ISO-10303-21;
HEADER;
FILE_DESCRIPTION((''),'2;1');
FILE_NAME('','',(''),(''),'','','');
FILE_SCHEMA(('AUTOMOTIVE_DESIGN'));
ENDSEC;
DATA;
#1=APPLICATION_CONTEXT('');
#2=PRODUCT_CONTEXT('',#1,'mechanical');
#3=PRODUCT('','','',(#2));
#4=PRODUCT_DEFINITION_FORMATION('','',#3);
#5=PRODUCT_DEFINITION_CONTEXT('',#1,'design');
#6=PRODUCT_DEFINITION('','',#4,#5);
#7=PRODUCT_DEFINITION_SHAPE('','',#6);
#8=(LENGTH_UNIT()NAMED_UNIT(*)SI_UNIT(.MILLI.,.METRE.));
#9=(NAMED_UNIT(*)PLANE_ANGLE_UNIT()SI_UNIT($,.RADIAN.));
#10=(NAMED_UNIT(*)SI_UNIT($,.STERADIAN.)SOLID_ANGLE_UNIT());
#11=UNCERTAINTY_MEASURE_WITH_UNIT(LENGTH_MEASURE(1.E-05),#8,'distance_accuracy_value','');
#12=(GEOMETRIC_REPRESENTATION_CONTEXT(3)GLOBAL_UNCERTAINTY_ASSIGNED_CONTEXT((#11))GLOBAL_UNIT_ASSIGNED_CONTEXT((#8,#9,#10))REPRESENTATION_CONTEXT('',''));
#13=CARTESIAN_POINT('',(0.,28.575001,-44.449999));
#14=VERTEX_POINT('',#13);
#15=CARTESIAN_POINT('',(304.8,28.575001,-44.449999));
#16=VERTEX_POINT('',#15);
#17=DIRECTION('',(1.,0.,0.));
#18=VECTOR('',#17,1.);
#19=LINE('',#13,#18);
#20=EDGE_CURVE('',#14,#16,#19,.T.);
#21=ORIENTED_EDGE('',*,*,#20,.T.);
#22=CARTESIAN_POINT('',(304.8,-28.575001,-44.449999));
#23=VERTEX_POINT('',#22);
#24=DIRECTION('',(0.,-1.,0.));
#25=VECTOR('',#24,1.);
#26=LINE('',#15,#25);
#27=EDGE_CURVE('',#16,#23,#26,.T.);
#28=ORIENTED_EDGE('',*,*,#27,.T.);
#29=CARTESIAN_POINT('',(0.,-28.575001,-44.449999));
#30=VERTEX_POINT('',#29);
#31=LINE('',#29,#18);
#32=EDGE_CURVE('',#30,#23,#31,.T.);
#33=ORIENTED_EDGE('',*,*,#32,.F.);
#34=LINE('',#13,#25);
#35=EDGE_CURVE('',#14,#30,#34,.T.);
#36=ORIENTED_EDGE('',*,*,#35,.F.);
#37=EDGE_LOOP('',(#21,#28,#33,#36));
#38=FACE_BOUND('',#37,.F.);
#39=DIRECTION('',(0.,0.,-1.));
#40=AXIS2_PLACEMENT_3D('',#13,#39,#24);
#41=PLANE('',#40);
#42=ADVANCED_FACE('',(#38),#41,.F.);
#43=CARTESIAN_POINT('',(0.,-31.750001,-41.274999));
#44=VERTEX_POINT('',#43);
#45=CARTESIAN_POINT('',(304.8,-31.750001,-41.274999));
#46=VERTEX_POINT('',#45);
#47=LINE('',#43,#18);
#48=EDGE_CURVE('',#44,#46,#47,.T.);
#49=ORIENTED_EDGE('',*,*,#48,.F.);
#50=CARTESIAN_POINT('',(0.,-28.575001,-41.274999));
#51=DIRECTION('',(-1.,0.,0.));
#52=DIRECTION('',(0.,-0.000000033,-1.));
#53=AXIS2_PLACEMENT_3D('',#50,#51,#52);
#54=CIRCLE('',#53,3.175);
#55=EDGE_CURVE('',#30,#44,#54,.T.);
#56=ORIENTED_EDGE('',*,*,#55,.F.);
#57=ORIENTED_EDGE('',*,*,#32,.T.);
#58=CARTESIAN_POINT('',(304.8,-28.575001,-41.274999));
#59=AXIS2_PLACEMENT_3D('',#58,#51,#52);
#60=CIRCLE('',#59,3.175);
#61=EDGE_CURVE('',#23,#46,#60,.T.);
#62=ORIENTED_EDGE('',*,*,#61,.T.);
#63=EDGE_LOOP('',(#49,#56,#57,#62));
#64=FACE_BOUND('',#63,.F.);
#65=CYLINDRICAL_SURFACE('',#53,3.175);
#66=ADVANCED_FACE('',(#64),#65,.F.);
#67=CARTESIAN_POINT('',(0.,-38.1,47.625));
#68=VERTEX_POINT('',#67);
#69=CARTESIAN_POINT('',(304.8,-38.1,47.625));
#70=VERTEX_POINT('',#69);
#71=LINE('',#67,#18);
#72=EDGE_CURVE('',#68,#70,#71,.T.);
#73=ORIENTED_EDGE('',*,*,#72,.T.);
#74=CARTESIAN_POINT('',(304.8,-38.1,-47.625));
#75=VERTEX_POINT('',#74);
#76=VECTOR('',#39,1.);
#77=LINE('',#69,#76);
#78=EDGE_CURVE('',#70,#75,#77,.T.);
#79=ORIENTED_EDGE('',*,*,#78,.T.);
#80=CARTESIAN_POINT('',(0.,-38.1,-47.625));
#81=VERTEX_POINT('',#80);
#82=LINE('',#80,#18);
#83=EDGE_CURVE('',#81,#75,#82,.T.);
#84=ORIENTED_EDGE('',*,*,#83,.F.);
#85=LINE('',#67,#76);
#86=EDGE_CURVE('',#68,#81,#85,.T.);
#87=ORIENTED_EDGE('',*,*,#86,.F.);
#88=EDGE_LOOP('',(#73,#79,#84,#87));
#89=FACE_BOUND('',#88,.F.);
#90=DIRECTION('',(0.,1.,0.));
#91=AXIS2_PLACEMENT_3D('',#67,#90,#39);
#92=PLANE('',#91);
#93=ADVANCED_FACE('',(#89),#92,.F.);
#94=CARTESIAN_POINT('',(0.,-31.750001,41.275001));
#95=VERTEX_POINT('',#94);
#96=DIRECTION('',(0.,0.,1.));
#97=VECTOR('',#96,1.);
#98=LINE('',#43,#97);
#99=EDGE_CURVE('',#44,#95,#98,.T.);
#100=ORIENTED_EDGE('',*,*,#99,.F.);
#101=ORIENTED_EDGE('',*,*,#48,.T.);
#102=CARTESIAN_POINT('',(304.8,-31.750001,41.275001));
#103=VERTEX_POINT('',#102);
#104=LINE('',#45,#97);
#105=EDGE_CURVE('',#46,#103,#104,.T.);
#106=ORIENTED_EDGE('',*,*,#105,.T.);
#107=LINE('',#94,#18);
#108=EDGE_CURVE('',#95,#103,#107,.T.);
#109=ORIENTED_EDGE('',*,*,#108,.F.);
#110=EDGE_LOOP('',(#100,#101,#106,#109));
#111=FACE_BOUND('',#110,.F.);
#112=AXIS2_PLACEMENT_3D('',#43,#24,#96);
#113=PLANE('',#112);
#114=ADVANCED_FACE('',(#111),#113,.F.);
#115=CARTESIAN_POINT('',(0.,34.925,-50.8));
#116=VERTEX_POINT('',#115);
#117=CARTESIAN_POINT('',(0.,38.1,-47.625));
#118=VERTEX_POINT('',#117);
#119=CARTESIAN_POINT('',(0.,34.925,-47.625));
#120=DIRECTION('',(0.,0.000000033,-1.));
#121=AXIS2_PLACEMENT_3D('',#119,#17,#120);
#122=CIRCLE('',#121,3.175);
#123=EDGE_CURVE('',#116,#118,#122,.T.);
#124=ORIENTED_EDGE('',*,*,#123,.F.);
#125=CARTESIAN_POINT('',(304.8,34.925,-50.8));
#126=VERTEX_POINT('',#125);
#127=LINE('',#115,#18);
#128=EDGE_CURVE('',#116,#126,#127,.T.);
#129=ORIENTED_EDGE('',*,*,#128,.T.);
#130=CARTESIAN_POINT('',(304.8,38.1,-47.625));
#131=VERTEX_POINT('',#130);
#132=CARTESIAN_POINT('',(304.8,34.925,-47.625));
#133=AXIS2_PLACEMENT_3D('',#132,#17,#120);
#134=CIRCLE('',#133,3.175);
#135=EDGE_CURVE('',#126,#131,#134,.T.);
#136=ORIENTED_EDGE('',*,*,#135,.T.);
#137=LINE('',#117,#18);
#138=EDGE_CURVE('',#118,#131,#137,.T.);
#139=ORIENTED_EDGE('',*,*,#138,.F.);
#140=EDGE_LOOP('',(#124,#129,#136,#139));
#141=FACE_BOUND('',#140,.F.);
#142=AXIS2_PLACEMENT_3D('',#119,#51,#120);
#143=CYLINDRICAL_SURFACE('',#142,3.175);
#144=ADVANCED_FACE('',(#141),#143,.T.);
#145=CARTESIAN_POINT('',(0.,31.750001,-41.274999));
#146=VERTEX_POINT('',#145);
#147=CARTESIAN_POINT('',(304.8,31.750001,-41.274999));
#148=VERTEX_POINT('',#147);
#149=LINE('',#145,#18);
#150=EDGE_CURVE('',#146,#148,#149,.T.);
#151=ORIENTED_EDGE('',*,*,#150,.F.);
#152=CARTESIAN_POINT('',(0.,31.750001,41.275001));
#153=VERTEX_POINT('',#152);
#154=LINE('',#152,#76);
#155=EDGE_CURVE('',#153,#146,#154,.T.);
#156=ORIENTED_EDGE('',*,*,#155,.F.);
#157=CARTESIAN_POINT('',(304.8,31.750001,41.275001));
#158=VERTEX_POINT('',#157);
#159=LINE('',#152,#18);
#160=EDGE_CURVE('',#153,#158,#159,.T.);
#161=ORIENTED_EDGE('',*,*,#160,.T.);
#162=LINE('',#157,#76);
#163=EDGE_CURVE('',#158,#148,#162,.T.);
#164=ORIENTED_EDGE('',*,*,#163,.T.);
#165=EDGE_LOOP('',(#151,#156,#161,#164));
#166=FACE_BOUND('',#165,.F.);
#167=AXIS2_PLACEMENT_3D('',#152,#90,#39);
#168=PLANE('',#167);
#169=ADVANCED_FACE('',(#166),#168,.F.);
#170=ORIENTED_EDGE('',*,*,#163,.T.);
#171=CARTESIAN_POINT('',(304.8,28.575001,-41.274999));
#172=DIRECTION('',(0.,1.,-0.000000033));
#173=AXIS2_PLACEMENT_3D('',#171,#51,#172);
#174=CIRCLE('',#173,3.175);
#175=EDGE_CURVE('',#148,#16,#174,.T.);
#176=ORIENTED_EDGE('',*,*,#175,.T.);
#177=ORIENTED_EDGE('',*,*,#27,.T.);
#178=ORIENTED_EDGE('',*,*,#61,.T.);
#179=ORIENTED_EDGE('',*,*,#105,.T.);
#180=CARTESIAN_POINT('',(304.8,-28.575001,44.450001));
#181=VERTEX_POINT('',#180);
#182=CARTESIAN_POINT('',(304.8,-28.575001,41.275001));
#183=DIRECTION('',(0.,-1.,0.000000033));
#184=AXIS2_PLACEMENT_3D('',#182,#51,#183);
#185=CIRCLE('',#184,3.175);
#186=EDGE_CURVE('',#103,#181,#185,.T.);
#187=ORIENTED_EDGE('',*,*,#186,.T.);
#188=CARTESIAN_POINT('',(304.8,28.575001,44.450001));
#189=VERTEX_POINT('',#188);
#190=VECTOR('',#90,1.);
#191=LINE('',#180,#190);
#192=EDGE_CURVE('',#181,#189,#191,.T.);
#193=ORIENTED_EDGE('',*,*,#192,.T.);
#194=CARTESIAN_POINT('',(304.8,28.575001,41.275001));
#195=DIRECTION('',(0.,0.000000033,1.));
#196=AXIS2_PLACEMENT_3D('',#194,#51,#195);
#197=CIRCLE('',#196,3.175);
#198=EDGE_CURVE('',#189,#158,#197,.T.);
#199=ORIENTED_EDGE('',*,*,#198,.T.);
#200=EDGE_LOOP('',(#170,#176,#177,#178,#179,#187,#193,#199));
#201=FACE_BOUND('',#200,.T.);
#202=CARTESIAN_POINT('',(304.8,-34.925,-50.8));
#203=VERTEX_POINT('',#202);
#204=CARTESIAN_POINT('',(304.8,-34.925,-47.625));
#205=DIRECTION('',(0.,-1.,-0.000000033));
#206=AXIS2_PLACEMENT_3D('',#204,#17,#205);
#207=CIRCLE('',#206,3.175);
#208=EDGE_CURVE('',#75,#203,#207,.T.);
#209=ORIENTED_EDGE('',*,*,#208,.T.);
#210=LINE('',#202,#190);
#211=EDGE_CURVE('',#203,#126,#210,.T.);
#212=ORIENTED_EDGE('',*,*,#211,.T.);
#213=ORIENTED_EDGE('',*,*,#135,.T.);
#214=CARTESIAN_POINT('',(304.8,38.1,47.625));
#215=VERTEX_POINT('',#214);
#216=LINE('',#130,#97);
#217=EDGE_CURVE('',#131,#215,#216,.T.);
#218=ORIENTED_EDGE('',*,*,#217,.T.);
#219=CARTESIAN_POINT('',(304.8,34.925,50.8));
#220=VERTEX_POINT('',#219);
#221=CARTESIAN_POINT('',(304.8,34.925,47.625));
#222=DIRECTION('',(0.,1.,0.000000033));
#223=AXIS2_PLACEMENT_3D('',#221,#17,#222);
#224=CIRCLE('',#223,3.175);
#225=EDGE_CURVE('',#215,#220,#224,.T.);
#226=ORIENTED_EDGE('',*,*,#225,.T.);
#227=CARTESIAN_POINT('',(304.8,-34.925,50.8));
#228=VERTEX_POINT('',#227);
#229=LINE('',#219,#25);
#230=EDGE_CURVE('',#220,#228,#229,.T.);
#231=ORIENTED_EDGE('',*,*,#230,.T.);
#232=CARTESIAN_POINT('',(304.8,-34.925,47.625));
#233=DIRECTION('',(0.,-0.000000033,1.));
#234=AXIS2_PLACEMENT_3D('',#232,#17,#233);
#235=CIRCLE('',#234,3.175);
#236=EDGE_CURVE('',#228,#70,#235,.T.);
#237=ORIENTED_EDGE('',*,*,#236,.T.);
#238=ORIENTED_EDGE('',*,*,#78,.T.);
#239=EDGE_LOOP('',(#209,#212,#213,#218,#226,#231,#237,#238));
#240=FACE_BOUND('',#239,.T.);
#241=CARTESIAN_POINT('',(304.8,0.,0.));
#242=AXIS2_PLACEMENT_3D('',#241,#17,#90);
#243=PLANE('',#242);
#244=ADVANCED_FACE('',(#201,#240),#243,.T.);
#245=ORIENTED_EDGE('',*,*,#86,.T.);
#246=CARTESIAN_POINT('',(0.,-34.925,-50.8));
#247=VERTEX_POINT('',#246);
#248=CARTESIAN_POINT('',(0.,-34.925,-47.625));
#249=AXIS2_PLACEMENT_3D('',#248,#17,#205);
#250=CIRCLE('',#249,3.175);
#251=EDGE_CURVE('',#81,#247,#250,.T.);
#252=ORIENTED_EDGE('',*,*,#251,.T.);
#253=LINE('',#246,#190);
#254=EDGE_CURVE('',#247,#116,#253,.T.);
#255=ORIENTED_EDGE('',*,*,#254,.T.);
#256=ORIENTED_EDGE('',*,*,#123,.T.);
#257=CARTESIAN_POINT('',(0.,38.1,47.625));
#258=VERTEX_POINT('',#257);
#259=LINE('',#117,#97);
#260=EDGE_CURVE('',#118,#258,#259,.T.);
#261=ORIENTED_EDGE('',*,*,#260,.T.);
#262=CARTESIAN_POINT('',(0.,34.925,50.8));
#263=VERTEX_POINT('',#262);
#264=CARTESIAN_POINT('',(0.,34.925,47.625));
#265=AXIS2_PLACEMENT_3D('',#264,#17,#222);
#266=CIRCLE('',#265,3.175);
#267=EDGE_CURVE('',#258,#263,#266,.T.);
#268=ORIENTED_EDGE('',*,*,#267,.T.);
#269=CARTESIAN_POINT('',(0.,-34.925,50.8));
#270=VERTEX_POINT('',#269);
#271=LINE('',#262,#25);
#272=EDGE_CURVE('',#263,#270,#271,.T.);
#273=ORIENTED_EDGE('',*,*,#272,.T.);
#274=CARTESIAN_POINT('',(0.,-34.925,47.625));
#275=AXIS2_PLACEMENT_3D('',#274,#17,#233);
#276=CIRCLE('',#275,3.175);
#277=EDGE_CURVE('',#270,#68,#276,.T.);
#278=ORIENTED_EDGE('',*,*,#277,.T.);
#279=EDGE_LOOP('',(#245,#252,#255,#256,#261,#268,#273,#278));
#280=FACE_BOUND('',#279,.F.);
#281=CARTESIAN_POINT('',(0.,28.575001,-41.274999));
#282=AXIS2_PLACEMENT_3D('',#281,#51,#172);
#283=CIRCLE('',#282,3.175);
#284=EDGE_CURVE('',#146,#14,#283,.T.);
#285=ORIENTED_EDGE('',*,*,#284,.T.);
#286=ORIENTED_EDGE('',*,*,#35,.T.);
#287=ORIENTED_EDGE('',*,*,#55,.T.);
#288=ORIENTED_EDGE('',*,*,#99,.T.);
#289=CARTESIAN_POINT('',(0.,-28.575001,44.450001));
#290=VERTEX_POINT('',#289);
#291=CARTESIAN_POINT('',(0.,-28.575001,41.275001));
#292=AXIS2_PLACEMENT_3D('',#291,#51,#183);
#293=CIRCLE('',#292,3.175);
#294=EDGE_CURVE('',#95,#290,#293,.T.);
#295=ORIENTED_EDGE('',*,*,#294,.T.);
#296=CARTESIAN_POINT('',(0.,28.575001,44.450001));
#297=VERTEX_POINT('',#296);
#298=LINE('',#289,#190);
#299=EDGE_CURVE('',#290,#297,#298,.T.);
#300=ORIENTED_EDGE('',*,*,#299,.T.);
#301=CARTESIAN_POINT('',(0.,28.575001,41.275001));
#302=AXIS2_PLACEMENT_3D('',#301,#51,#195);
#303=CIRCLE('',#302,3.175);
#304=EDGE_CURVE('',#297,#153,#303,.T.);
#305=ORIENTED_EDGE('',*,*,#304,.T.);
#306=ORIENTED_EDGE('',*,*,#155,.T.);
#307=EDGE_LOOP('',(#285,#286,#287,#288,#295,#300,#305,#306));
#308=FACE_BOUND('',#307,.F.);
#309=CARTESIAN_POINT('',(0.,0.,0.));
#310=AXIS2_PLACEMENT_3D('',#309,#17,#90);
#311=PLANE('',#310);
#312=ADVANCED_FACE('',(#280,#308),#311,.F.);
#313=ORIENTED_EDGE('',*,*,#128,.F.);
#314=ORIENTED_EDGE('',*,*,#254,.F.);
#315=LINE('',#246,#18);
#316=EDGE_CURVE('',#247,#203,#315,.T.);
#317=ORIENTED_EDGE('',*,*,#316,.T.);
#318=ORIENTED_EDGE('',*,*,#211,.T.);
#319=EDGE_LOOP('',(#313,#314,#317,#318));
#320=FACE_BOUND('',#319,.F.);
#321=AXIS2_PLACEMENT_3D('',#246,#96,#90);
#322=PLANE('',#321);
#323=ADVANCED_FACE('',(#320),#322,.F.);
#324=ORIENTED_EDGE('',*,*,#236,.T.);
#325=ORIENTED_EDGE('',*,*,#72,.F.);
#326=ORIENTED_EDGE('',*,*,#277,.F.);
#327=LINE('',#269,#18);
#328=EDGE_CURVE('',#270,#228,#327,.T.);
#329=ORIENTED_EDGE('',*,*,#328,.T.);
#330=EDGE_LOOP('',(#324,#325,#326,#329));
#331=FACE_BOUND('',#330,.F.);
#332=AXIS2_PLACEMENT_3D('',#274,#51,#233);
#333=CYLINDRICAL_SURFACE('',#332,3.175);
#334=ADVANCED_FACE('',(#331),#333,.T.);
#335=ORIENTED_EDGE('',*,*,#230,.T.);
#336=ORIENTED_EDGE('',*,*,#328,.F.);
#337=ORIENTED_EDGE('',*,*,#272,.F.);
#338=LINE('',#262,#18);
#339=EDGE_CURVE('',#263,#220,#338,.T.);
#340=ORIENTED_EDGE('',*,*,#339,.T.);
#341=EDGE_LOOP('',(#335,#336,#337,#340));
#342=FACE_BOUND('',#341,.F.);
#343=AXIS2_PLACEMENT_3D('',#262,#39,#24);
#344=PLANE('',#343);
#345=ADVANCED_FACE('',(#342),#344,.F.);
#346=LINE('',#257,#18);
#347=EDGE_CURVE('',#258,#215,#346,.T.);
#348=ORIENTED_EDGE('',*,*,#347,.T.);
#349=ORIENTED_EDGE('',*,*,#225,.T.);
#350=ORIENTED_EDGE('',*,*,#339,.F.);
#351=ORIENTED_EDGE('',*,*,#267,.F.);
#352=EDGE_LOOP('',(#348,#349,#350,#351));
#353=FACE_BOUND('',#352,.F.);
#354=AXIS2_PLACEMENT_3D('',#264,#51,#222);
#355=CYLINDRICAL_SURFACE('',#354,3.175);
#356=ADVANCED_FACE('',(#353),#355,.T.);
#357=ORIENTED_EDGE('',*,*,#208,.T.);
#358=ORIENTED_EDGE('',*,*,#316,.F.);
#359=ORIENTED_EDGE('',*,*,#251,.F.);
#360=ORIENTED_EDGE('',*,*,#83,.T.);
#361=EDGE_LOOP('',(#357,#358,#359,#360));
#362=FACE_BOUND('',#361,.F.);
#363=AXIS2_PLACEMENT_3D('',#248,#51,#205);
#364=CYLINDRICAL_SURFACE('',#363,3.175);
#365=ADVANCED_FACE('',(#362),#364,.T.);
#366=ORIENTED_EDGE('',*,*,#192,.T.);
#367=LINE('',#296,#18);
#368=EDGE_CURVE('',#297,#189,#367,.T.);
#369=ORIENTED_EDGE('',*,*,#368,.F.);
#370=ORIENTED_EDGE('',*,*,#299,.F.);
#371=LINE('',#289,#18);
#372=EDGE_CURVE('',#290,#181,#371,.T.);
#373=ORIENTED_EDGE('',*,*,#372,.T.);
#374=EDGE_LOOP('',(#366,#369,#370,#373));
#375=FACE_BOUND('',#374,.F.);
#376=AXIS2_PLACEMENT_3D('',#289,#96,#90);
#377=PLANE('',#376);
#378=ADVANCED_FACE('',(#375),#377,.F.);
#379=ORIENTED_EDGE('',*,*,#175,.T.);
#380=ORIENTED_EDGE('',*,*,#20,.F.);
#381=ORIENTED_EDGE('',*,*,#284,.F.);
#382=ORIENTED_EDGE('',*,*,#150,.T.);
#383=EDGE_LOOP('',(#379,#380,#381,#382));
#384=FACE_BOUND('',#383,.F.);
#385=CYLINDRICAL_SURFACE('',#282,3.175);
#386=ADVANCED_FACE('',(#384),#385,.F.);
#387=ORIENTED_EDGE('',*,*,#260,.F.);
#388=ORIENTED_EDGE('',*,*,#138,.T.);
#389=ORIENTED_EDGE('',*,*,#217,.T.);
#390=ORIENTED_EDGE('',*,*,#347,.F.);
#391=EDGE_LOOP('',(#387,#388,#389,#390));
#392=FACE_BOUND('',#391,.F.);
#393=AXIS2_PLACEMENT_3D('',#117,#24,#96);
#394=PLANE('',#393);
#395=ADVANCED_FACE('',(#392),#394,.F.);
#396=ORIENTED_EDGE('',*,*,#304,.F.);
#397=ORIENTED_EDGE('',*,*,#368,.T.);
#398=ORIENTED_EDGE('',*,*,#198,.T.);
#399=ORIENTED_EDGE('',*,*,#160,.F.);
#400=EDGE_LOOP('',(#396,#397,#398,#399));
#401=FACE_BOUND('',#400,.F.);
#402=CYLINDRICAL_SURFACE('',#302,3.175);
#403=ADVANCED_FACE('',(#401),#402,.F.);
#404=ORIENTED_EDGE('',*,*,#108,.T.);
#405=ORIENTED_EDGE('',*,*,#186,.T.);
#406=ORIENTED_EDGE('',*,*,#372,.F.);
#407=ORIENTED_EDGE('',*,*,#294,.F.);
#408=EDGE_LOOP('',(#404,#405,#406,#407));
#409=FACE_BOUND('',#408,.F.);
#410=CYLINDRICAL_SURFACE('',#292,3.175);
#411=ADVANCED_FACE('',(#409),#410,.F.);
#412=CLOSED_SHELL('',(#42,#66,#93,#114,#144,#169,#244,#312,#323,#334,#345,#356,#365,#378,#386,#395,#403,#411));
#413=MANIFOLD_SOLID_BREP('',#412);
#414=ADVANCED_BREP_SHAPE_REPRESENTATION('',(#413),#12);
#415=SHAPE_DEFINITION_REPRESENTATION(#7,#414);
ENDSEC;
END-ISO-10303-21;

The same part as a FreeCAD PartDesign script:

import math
import FreeCAD as App
import Part
import Sketcher

V = App.Vector
Q = App.Units.Quantity

doc = App.newDocument("Part")
body = doc.addObject("PartDesign::Body", "Body")

# Sketch on YZ plane
sketch1 = body.newObject("Sketcher::SketchObject", "Sketch")
sketch1.AttachmentSupport = (doc.getObject("YZ_Plane"), [""])
sketch1.MapMode = "FlatFace"
sketch1.addGeometry([
    Part.LineSegment(V(34.9, 50.8, 0), V(-34.9, 50.8, 0)),  # 0
    Part.ArcOfCircle(Part.Circle(V(-34.9, 47.6, 0), V(0, 0, 1), 3.2), math.radians(90), math.radians(180)),  # 1
    Part.LineSegment(V(-38.1, 47.6, 0), V(-38.1, -47.6, 0)),  # 2
    Part.ArcOfCircle(Part.Circle(V(-34.9, -47.6, 0), V(0, 0, 1), 3.2), math.radians(-180), math.radians(-90)),  # 3
    Part.LineSegment(V(-34.9, -50.8, 0), V(34.9, -50.8, 0)),  # 4
    Part.ArcOfCircle(Part.Circle(V(34.9, -47.6, 0), V(0, 0, 1), 3.2), math.radians(-90), math.radians(0)),  # 5
    Part.LineSegment(V(38.1, -47.6, 0), V(38.1, 47.6, 0)),  # 6
    Part.ArcOfCircle(Part.Circle(V(34.9, 47.6, 0), V(0, 0, 1), 3.2), math.radians(0), math.radians(90)),  # 7
    Part.ArcOfCircle(Part.Circle(V(-28.6, -41.3, 0), V(0, 0, 1), 3.2), math.radians(-180), math.radians(-90)),  # 8
    Part.LineSegment(V(-31.8, -41.3, 0), V(-31.8, 41.3, 0)),  # 9
    Part.ArcOfCircle(Part.Circle(V(-28.6, 41.3, 0), V(0, 0, 1), 3.2), math.radians(90), math.radians(180)),  # 10
    Part.LineSegment(V(-28.6, 44.5, 0), V(28.6, 44.5, 0)),  # 11
    Part.ArcOfCircle(Part.Circle(V(28.6, 41.3, 0), V(0, 0, 1), 3.2), math.radians(0), math.radians(90)),  # 12
    Part.LineSegment(V(31.8, 41.3, 0), V(31.8, -41.3, 0)),  # 13
    Part.ArcOfCircle(Part.Circle(V(28.6, -41.3, 0), V(0, 0, 1), 3.2), math.radians(-90), math.radians(0)),  # 14
    Part.LineSegment(V(28.6, -44.4, 0), V(-28.6, -44.4, 0)),  # 15
], False)
sketch1.addConstraint([
    Sketcher.Constraint("Tangent", 0, 2, 1, 1),
    Sketcher.Constraint("Tangent", 1, 2, 2, 1),
    Sketcher.Constraint("Tangent", 2, 2, 3, 1),
    Sketcher.Constraint("Tangent", 3, 2, 4, 1),
    Sketcher.Constraint("Tangent", 4, 2, 5, 1),
    Sketcher.Constraint("Tangent", 5, 2, 6, 1),
    Sketcher.Constraint("Tangent", 6, 2, 7, 1),
    Sketcher.Constraint("Tangent", 7, 2, 0, 1),
    Sketcher.Constraint("Tangent", 8, 1, 9, 1),
    Sketcher.Constraint("Tangent", 9, 2, 10, 2),
    Sketcher.Constraint("Tangent", 10, 1, 11, 1),
    Sketcher.Constraint("Tangent", 11, 2, 12, 2),
    Sketcher.Constraint("Tangent", 12, 1, 13, 1),
    Sketcher.Constraint("Tangent", 13, 2, 14, 2),
    Sketcher.Constraint("Tangent", 14, 1, 15, 1),
    Sketcher.Constraint("Tangent", 15, 2, 8, 2),
    Sketcher.Constraint("Horizontal", 0),
    Sketcher.Constraint("Vertical", 2),
    Sketcher.Constraint("Horizontal", 4),
    Sketcher.Constraint("Vertical", 6),
    Sketcher.Constraint("Vertical", 9),
    Sketcher.Constraint("Horizontal", 11),
    Sketcher.Constraint("Vertical", 13),
    Sketcher.Constraint("Horizontal", 15),
    Sketcher.Constraint("Equal", 1, 3),
    Sketcher.Constraint("Equal", 3, 5),
    Sketcher.Constraint("Equal", 5, 7),
    Sketcher.Constraint("Equal", 7, 8),
    Sketcher.Constraint("Equal", 8, 10),
    Sketcher.Constraint("Equal", 10, 12),
    Sketcher.Constraint("Equal", 12, 14),
    Sketcher.Constraint("Symmetric", 1, 3, 5, 3, -1, 1),
    Sketcher.Constraint("Symmetric", 8, 3, 12, 3, -1, 1),
    Sketcher.Constraint("DistanceY", -1, 1, 0, 2, Q("2 in")),
    Sketcher.Constraint("Radius", 1, Q("0.125 in")),
    Sketcher.Constraint("DistanceX", 0, 2, 0, 1, Q("2.75 in")),
    Sketcher.Constraint("DistanceX", 11, 1, 11, 2, Q("2.2500001 in")),
    Sketcher.Constraint("DistanceY", 9, 1, 9, 2, Q("3.25 in")),
])
pad1 = body.newObject("PartDesign::Pad", "Pad")
pad1.Profile = sketch1
pad1.Length = Q("12 in")

doc.recompute()
